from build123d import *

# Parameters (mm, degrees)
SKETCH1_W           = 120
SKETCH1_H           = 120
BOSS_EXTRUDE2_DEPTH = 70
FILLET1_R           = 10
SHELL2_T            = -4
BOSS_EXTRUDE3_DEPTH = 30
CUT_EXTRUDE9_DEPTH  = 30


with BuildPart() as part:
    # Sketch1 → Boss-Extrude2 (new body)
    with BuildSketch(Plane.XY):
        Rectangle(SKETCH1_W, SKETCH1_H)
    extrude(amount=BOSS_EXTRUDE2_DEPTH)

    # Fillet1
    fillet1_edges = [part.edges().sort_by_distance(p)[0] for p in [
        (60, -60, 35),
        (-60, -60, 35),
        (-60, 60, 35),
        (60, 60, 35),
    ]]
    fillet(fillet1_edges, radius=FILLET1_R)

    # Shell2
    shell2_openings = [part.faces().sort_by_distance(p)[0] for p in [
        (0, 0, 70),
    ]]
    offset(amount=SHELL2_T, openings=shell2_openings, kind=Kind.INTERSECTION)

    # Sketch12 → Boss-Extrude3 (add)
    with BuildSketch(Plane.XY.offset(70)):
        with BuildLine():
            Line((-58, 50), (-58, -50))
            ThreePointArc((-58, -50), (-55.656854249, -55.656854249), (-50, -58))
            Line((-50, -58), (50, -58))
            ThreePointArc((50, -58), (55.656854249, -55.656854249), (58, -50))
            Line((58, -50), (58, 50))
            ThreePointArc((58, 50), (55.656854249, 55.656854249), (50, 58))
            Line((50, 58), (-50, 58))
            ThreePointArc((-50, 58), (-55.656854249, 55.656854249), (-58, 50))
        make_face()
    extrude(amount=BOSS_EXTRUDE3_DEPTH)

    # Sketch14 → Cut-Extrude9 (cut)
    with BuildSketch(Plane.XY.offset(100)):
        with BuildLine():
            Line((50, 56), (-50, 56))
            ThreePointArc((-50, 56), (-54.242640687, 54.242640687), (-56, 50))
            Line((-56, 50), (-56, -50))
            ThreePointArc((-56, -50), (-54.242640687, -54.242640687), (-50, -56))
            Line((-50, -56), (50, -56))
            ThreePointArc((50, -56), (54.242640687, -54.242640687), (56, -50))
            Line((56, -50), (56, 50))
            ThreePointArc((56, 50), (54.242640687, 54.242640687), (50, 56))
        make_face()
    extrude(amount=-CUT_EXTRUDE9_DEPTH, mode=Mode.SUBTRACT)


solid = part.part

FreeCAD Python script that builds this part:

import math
import FreeCAD as App
import Part
import Sketcher
from FreeCAD import Vector


def edges_at(feature, points):
    """Names of the edges that pass closest to the given points."""
    edges = feature.Shape.Edges
    near = lambda p: min(range(len(edges)), key=lambda i: edges[i].distToShape(Part.Vertex(*p))[0])
    return sorted({f"Edge{near(p) + 1}" for p in points})


def faces_at(feature, points):
    """Names of the faces that lie closest to the given points."""
    faces = feature.Shape.Faces
    near = lambda p: min(range(len(faces)), key=lambda i: faces[i].distToShape(Part.Vertex(*p))[0])
    return sorted({f"Face{near(p) + 1}" for p in points})

doc = App.newDocument("Part")
body = doc.addObject("PartDesign::Body", "Body")

# Sketch on XY plane
sketch1 = body.newObject("Sketcher::SketchObject", "Sketch")
sketch1.AttachmentSupport = (doc.getObject("XY_Plane"), [""])
sketch1.MapMode = "FlatFace"
sketch1.addGeometry(Part.LineSegment(Vector(-60, 60, 0), Vector(-60, -60, 0)), False)
sketch1.addGeometry(Part.LineSegment(Vector(-60, -60, 0), Vector(60, -60, 0)), False)
sketch1.addGeometry(Part.LineSegment(Vector(60, -60, 0), Vector(60, 60, 0)), False)
sketch1.addGeometry(Part.LineSegment(Vector(60, 60, 0), Vector(-60, 60, 0)), False)
sketch1.addConstraint(Sketcher.Constraint("Coincident", 0, 2, 1, 1))
sketch1.addConstraint(Sketcher.Constraint("Coincident", 1, 2, 2, 1))
sketch1.addConstraint(Sketcher.Constraint("Coincident", 2, 2, 3, 1))
sketch1.addConstraint(Sketcher.Constraint("Coincident", 3, 2, 0, 1))
sketch1.addConstraint(Sketcher.Constraint("Vertical", 0))
sketch1.addConstraint(Sketcher.Constraint("Horizontal", 1))
sketch1.addConstraint(Sketcher.Constraint("Vertical", 2))
sketch1.addConstraint(Sketcher.Constraint("Horizontal", 3))
sketch1.addConstraint(Sketcher.Constraint("Symmetric", 0, 2, 2, 2, -1, 1))
sketch1.addConstraint(Sketcher.Constraint("Equal", 3, 0))
sketch1.addConstraint(Sketcher.Constraint("DistanceX", 1, 1, 1, 2, 120.0))
pad1 = body.newObject("PartDesign::Pad", "Pad")
pad1.Profile = sketch1
pad1.Length = 70
doc.recompute()

fillet = body.newObject("PartDesign::Fillet", "Fillet")
fillet.Base = (pad1, edges_at(pad1, [
    (60, -60, 35),
    (-60, -60, 35),
    (-60, 60, 35),
    (60, 60, 35),
]))
fillet.Radius = 10
doc.recompute()

thickness = body.newObject("PartDesign::Thickness", "Thickness")
thickness.Base = (fillet, faces_at(fillet, [(0, 0, 70)]))
thickness.Value = 4
thickness.Reversed = True
thickness.Join = "Intersection"

# Sketch on XY plane
sketch2 = body.newObject("Sketcher::SketchObject", "Sketch001")
sketch2.AttachmentSupport = (doc.getObject("XY_Plane"), [""])
sketch2.MapMode = "FlatFace"
sketch2.AttachmentOffset = App.Placement(Vector(0, 0, 70), App.Rotation())
sketch2.addGeometry(Part.LineSegment(Vector(-58, 50, 0), Vector(-58, -50, 0)), False)
sketch2.addGeometry(Part.ArcOfCircle(Part.Circle(Vector(-50, -50, 0), Vector(0, 0, 1), 8), math.radians(-180), math.radians(-90)), False)
sketch2.addGeometry(Part.LineSegment(Vector(-50, -58, 0), Vector(50, -58, 0)), False)
sketch2.addGeometry(Part.ArcOfCircle(Part.Circle(Vector(50, -50, 0), Vector(0, 0, 1), 8), math.radians(-90), math.radians(0)), False)
sketch2.addGeometry(Part.LineSegment(Vector(58, -50, 0), Vector(58, 50, 0)), False)
sketch2.addGeometry(Part.ArcOfCircle(Part.Circle(Vector(50, 50, 0), Vector(0, 0, 1), 8), math.radians(0), math.radians(90)), False)
sketch2.addGeometry(Part.LineSegment(Vector(50, 58, 0), Vector(-50, 58, 0)), False)
sketch2.addGeometry(Part.ArcOfCircle(Part.Circle(Vector(-50, 50, 0), Vector(0, 0, 1), 8), math.radians(90), math.radians(180)), False)
sketch2.addConstraint(Sketcher.Constraint("Tangent", 0, 2, 1, 1))
sketch2.addConstraint(Sketcher.Constraint("Tangent", 1, 2, 2, 1))
sketch2.addConstraint(Sketcher.Constraint("Tangent", 2, 2, 3, 1))
sketch2.addConstraint(Sketcher.Constraint("Tangent", 3, 2, 4, 1))
sketch2.addConstraint(Sketcher.Constraint("Tangent", 4, 2, 5, 1))
sketch2.addConstraint(Sketcher.Constraint("Tangent", 5, 2, 6, 1))
sketch2.addConstraint(Sketcher.Constraint("Tangent", 6, 2, 7, 1))
sketch2.addConstraint(Sketcher.Constraint("Tangent", 7, 2, 0, 1))
sketch2.addConstraint(Sketcher.Constraint("Vertical", 0))
sketch2.addConstraint(Sketcher.Constraint("Horizontal", 2))
sketch2.addConstraint(Sketcher.Constraint("Vertical", 4))
sketch2.addConstraint(Sketcher.Constraint("Horizontal", 6))
sketch2.addConstraint(Sketcher.Constraint("Equal", 1, 3))
sketch2.addConstraint(Sketcher.Constraint("Equal", 3, 5))
sketch2.addConstraint(Sketcher.Constraint("Equal", 5, 7))
sketch2.addConstraint(Sketcher.Constraint("Symmetric", 1, 3, 5, 3, -1, 1))
sketch2.addConstraint(Sketcher.Constraint("Equal", 6, 0))
sketch2.addConstraint(Sketcher.Constraint("Radius", 1, 8.0))
sketch2.addConstraint(Sketcher.Constraint("DistanceX", 2, 1, 2, 2, 100.0))
pad2 = body.newObject("PartDesign::Pad", "Pad001")
pad2.Profile = sketch2
pad2.Length = 30

# Sketch on XY plane
sketch3 = body.newObject("Sketcher::SketchObject", "Sketch002")
sketch3.AttachmentSupport = (doc.getObject("XY_Plane"), [""])
sketch3.MapMode = "FlatFace"
sketch3.AttachmentOffset = App.Placement(Vector(0, 0, 100), App.Rotation())
sketch3.addGeometry(Part.LineSegment(Vector(50, 56, 0), Vector(-50, 56, 0)), False)
sketch3.addGeometry(Part.ArcOfCircle(Part.Circle(Vector(-50, 50, 0), Vector(0, 0, 1), 6), math.radians(90), math.radians(180)), False)
sketch3.addGeometry(Part.LineSegment(Vector(-56, 50, 0), Vector(-56, -50, 0)), False)
sketch3.addGeometry(Part.ArcOfCircle(Part.Circle(Vector(-50, -50, 0), Vector(0, 0, 1), 6), math.radians(180), math.radians(270)), False)
sketch3.addGeometry(Part.LineSegment(Vector(-50, -56, 0), Vector(50, -56, 0)), False)
sketch3.addGeometry(Part.ArcOfCircle(Part.Circle(Vector(50, -50, 0), Vector(0, 0, 1), 6), math.radians(-90), math.radians(0)), False)
sketch3.addGeometry(Part.LineSegment(Vector(56, -50, 0), Vector(56, 50, 0)), False)
sketch3.addGeometry(Part.ArcOfCircle(Part.Circle(Vector(50, 50, 0), Vector(0, 0, 1), 6), math.radians(0), math.radians(90)), False)
sketch3.addConstraint(Sketcher.Constraint("Tangent", 0, 2, 1, 1))
sketch3.addConstraint(Sketcher.Constraint("Tangent", 1, 2, 2, 1))
sketch3.addConstraint(Sketcher.Constraint("Tangent", 2, 2, 3, 1))
sketch3.addConstraint(Sketcher.Constraint("Tangent", 3, 2, 4, 1))
sketch3.addConstraint(Sketcher.Constraint("Tangent", 4, 2, 5, 1))
sketch3.addConstraint(Sketcher.Constraint("Tangent", 5, 2, 6, 1))
sketch3.addConstraint(Sketcher.Constraint("Tangent", 6, 2, 7, 1))
sketch3.addConstraint(Sketcher.Constraint("Tangent", 7, 2, 0, 1))
sketch3.addConstraint(Sketcher.Constraint("Horizontal", 0))
sketch3.addConstraint(Sketcher.Constraint("Vertical", 2))
sketch3.addConstraint(Sketcher.Constraint("Horizontal", 4))
sketch3.addConstraint(Sketcher.Constraint("Vertical", 6))
sketch3.addConstraint(Sketcher.Constraint("Equal", 1, 3))
sketch3.addConstraint(Sketcher.Constraint("Equal", 3, 5))
sketch3.addConstraint(Sketcher.Constraint("Equal", 5, 7))
sketch3.addConstraint(Sketcher.Constraint("Symmetric", 1, 3, 5, 3, -1, 1))
sketch3.addConstraint(Sketcher.Constraint("Equal", 4, 2))
sketch3.addConstraint(Sketcher.Constraint("Radius", 1, 6.0))
sketch3.addConstraint(Sketcher.Constraint("DistanceX", 0, 2, 0, 1, 100.0))
pocket1 = body.newObject("PartDesign::Pocket", "Pocket")
pocket1.Profile = sketch3
pocket1.Length = 30

doc.recompute()
